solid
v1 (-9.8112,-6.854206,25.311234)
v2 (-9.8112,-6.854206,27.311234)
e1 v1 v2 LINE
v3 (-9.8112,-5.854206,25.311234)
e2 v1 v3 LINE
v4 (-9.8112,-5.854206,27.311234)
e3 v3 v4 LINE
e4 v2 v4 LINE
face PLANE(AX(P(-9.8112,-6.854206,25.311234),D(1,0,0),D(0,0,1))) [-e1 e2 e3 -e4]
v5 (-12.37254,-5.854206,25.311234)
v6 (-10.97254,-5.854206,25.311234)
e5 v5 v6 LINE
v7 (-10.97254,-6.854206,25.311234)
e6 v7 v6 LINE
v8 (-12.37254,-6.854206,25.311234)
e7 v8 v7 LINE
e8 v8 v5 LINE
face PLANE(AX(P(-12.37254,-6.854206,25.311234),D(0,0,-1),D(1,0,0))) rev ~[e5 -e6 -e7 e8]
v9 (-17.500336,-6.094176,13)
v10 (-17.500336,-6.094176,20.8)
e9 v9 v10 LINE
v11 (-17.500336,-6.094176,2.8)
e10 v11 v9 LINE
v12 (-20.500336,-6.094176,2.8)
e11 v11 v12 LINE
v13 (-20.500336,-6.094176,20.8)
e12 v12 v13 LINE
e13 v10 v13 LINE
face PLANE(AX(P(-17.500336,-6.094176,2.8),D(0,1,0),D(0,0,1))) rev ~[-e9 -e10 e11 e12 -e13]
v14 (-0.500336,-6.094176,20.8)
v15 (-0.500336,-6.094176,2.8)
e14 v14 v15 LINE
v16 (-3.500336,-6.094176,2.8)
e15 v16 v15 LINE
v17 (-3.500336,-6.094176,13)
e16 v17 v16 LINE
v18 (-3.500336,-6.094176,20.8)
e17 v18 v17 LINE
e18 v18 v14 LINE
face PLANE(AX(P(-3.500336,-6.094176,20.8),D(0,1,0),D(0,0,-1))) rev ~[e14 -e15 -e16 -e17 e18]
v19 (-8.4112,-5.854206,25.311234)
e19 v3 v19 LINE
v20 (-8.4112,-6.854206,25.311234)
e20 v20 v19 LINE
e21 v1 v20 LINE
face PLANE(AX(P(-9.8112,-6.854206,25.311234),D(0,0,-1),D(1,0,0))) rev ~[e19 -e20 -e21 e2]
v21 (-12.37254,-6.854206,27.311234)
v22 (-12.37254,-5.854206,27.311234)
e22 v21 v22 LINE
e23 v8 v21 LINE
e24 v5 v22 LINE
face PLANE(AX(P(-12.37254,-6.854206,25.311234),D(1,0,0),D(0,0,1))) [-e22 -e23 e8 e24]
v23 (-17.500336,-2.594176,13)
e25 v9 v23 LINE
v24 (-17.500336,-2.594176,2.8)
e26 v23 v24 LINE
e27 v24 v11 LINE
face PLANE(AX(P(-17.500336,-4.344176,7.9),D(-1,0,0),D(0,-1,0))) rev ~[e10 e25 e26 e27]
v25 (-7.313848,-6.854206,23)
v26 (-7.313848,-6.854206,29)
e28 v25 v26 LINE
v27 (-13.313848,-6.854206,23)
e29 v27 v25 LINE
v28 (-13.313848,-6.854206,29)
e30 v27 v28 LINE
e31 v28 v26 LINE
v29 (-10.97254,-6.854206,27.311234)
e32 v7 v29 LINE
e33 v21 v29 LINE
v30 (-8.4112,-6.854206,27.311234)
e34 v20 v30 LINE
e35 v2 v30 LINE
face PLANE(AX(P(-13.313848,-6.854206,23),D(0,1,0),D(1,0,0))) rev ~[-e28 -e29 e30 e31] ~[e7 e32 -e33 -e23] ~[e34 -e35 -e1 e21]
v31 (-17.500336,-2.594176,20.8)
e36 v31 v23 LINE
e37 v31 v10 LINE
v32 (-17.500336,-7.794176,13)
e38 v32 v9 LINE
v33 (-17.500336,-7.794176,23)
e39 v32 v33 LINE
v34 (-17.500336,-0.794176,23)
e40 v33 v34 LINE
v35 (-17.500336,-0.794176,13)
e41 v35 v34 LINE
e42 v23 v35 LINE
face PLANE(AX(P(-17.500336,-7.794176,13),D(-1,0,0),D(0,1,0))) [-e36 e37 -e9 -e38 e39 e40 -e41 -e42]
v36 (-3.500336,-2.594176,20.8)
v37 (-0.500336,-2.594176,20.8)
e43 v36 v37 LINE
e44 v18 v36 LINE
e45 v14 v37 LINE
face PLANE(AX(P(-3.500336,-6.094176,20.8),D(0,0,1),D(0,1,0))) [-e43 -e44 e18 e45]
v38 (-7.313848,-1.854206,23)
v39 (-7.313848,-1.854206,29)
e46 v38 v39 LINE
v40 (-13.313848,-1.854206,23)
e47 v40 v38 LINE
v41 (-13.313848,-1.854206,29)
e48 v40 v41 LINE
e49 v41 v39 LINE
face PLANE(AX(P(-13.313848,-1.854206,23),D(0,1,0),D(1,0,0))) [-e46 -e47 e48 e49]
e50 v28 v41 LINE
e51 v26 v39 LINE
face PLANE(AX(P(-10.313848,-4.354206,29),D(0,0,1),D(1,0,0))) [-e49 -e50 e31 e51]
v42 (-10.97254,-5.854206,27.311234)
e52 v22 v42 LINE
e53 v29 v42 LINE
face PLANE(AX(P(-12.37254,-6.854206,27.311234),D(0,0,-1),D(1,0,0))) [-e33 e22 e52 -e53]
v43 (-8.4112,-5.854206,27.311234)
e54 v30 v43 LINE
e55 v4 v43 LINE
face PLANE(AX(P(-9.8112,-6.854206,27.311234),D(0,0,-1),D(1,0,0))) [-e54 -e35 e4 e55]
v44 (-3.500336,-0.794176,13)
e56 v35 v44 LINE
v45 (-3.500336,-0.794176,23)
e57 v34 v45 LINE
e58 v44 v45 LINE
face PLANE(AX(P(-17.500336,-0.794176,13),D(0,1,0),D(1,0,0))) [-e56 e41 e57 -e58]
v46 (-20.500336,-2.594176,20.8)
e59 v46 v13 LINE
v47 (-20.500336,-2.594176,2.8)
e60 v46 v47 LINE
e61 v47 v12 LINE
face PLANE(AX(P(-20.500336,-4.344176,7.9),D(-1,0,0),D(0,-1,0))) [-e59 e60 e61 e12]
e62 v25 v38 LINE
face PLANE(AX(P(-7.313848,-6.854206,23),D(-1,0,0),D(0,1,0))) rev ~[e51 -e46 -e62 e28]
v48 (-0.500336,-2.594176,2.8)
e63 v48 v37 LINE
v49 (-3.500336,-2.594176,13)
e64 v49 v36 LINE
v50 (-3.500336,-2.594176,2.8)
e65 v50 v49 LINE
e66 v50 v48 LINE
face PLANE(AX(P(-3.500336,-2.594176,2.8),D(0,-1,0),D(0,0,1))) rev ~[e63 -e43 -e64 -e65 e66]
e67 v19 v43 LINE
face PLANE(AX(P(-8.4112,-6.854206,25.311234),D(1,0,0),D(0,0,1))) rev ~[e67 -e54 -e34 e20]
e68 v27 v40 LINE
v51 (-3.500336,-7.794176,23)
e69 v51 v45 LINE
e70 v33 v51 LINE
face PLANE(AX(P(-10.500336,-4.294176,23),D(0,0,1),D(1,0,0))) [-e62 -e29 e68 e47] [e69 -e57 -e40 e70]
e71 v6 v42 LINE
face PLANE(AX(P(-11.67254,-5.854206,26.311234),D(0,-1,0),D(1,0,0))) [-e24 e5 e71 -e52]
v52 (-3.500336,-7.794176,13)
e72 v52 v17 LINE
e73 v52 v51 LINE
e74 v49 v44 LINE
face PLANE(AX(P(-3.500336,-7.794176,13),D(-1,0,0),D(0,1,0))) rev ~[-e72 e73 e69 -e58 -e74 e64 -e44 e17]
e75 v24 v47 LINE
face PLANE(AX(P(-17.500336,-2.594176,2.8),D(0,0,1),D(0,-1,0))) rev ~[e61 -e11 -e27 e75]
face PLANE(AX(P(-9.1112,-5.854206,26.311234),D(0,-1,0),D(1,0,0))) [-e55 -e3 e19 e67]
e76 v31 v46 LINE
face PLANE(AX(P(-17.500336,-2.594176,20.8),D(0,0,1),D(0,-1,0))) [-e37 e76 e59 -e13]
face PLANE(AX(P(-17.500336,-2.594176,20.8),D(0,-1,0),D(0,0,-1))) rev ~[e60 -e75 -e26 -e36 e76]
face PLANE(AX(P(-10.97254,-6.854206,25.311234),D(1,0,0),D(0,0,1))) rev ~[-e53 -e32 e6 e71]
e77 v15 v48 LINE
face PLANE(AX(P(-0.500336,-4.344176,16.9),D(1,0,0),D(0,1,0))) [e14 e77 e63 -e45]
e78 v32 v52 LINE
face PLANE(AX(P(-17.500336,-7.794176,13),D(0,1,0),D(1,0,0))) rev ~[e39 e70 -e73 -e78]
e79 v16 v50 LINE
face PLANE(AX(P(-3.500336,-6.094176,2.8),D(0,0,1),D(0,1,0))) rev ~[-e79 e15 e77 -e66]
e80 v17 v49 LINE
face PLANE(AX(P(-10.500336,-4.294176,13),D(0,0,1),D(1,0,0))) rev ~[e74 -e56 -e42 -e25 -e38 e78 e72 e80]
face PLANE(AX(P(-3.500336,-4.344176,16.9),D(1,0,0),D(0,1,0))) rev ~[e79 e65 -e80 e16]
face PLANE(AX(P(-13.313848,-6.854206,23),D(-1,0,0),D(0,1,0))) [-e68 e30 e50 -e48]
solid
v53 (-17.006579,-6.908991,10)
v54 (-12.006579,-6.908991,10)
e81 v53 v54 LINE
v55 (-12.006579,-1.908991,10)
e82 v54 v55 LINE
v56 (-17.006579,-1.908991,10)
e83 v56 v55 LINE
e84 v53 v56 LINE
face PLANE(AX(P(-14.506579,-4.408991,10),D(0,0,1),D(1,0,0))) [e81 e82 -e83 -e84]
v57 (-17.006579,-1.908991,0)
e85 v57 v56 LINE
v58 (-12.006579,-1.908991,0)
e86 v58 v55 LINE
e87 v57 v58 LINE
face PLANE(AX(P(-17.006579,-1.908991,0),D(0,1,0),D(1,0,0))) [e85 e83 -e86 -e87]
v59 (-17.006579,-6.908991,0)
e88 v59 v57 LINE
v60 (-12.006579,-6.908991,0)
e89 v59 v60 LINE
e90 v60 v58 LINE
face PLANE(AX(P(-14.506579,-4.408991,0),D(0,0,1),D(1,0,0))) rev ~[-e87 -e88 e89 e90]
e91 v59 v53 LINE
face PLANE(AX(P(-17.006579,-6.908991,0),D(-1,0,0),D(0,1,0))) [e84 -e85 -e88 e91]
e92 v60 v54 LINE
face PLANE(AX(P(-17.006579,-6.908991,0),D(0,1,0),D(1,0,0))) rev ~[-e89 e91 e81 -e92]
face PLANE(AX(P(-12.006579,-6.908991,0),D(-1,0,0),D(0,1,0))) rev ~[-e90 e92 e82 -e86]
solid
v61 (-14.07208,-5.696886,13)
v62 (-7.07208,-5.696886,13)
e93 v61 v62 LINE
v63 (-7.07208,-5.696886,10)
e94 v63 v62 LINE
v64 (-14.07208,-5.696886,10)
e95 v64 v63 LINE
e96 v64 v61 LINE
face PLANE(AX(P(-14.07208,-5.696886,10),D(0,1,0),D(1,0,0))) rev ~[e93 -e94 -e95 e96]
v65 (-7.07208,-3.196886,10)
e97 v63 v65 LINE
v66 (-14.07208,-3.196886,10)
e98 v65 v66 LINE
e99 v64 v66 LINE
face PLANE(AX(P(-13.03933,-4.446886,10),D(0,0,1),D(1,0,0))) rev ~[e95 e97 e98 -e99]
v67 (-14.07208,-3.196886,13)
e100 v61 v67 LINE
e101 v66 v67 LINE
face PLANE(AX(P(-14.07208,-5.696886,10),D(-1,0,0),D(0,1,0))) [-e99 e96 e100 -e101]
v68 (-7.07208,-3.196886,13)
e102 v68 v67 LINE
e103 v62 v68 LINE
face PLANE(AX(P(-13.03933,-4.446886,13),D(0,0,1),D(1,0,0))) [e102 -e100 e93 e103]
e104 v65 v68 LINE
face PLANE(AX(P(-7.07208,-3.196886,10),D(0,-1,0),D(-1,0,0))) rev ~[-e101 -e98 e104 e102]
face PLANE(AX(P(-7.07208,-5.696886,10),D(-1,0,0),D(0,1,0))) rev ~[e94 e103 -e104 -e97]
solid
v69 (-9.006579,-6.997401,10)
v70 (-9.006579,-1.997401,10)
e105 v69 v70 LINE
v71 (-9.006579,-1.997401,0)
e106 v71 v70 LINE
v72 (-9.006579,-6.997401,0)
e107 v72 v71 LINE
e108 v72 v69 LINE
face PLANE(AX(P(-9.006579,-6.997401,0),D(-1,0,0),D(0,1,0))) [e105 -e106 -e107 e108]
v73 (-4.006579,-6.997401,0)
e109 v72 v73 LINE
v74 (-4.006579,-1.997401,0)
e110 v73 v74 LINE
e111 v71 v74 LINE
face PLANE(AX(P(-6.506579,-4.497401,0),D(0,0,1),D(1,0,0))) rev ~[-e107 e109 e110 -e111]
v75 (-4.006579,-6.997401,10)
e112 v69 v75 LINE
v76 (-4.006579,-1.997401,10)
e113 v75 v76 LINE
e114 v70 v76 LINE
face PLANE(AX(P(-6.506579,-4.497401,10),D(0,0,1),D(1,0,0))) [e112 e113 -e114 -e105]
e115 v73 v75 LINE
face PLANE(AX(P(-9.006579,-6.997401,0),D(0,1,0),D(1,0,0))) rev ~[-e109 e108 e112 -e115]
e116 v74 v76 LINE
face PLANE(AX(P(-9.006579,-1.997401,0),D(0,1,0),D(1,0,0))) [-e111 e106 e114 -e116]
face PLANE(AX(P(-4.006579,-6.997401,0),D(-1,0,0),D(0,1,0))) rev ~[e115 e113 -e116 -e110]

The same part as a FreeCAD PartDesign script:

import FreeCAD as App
import Part
import Sketcher

doc = App.newDocument("Part")
body = doc.addObject("PartDesign::Body", "Body")

sketch1 = body.newObject("Sketcher::SketchObject", "Sketch")
sketch1.AttachmentSupport = (doc.getObject("XY_Plane"), [""])
sketch1.MapMode = "FlatFace"
sketch1.addGeometry([
    Part.LineSegment(App.Vector(-17, -2, 0), App.Vector(-17, -7, 0)),
    Part.LineSegment(App.Vector(-17, -7, 0), App.Vector(-12, -7, 0)),
    Part.LineSegment(App.Vector(-12, -7, 0), App.Vector(-12, -2, 0)),
    Part.LineSegment(App.Vector(-12, -2, 0), App.Vector(-17, -2, 0)),
], False)
sketch1.addConstraint([
    Sketcher.Constraint("Coincident", 0, 2, 1, 1),
    Sketcher.Constraint("Coincident", 1, 2, 2, 1),
    Sketcher.Constraint("Coincident", 2, 2, 3, 1),
    Sketcher.Constraint("Coincident", 3, 2, 0, 1),
    Sketcher.Constraint("Vertical", 0),
    Sketcher.Constraint("Horizontal", 1),
    Sketcher.Constraint("Vertical", 2),
    Sketcher.Constraint("Horizontal", 3),
    Sketcher.Constraint("Equal", 3, 0),
    Sketcher.Constraint("DistanceX", 1, 1, 1, 2, 5.0),
    Sketcher.Constraint("DistanceX", 0, 2, -1, 1, 17.006579),
    Sketcher.Constraint("DistanceY", 0, 2, -1, 1, 6.908991),
])
pad1 = body.newObject("PartDesign::Pad", "Pad")
pad1.Profile = sketch1
pad1.Length = 10
body2 = doc.addObject("PartDesign::Body", "Body001")

sketch2 = body2.newObject("Sketcher::SketchObject", "Sketch001")
sketch2.AttachmentSupport = (doc.getObject("XY_Plane001"), [""])
sketch2.MapMode = "FlatFace"
sketch2.addGeometry([
    Part.LineSegment(App.Vector(-9, -2, 0), App.Vector(-9, -7, 0)),
    Part.LineSegment(App.Vector(-9, -7, 0), App.Vector(-4, -7, 0)),
    Part.LineSegment(App.Vector(-4, -7, 0), App.Vector(-4, -2, 0)),
    Part.LineSegment(App.Vector(-4, -2, 0), App.Vector(-9, -2, 0)),
], False)
sketch2.addConstraint([
    Sketcher.Constraint("Coincident", 0, 2, 1, 1),
    Sketcher.Constraint("Coincident", 1, 2, 2, 1),
    Sketcher.Constraint("Coincident", 2, 2, 3, 1),
    Sketcher.Constraint("Coincident", 3, 2, 0, 1),
    Sketcher.Constraint("Vertical", 0),
    Sketcher.Constraint("Horizontal", 1),
    Sketcher.Constraint("Vertical", 2),
    Sketcher.Constraint("Horizontal", 3),
    Sketcher.Constraint("Equal", 3, 0),
    Sketcher.Constraint("DistanceX", 1, 1, 1, 2, 5.0),
    Sketcher.Constraint("DistanceY", 0, 2, -1, 1, 6.997401),
    Sketcher.Constraint("DistanceX", 0, 2, -1, 1, 9.006579),
])
pad2 = body2.newObject("PartDesign::Pad", "Pad001")
pad2.Profile = sketch2
pad2.Length = 10
body3 = doc.addObject("PartDesign::Body", "Body002")

sketch3 = body3.newObject("Sketcher::SketchObject", "Sketch002")
sketch3.AttachmentSupport = (doc.getObject("XY_Plane002"), [""])
sketch3.MapMode = "FlatFace"
sketch3.AttachmentOffset = App.Placement(App.Vector(0, 0, 10), App.Rotation())
sketch3.addGeometry([
    Part.LineSegment(App.Vector(-14.1, -3.2, 0), App.Vector(-14.1, -5.7, 0)),
    Part.LineSegment(App.Vector(-14.1, -5.7, 0), App.Vector(-7.1, -5.7, 0)),
    Part.LineSegment(App.Vector(-7.1, -5.7, 0), App.Vector(-7.1, -3.2, 0)),
    Part.LineSegment(App.Vector(-7.1, -3.2, 0), App.Vector(-14.1, -3.2, 0)),
], False)
sketch3.addConstraint([
    Sketcher.Constraint("Coincident", 0, 2, 1, 1),
    Sketcher.Constraint("Coincident", 1, 2, 2, 1),
    Sketcher.Constraint("Coincident", 2, 2, 3, 1),
    Sketcher.Constraint("Coincident", 3, 2, 0, 1),
    Sketcher.Constraint("Vertical", 0),
    Sketcher.Constraint("Horizontal", 1),
    Sketcher.Constraint("Vertical", 2),
    Sketcher.Constraint("Horizontal", 3),
    Sketcher.Constraint("DistanceX", 1, 1, 1, 2, 7.0),
    Sketcher.Constraint("DistanceY", 0, 2, 0, 1, 2.5),
    Sketcher.Constraint("DistanceX", 0, 2, -1, 1, 14.07208),
    Sketcher.Constraint("DistanceY", 0, 2, -1, 1, 5.696886),
])
pad3 = body3.newObject("PartDesign::Pad", "Pad002")
pad3.Profile = sketch3
pad3.Length = 3
body4 = doc.addObject("PartDesign::Body", "Body003")

sketch4 = body4.newObject("Sketcher::SketchObject", "Sketch003")
sketch4.AttachmentSupport = (doc.getObject("XY_Plane003"), [""])
sketch4.MapMode = "FlatFace"
sketch4.AttachmentOffset = App.Placement(App.Vector(0, 0, 13), App.Rotation())
sketch4.addGeometry([
    Part.LineSegment(App.Vector(-18, -1, 0), App.Vector(-18, -8, 0)),
    Part.LineSegment(App.Vector(-18, -8, 0), App.Vector(-4, -8, 0)),
    Part.LineSegment(App.Vector(-4, -8, 0), App.Vector(-4, -1, 0)),
    Part.LineSegment(App.Vector(-4, -1, 0), App.Vector(-18, -1, 0)),
], False)
sketch4.addConstraint([
    Sketcher.Constraint("Coincident", 0, 2, 1, 1),
    Sketcher.Constraint("Coincident", 1, 2, 2, 1),
    Sketcher.Constraint("Coincident", 2, 2, 3, 1),
    Sketcher.Constraint("Coincident", 3, 2, 0, 1),
    Sketcher.Constraint("Vertical", 0),
    Sketcher.Constraint("Horizontal", 1),
    Sketcher.Constraint("Vertical", 2),
    Sketcher.Constraint("Horizontal", 3),
    Sketcher.Constraint("DistanceX", 1, 1, 1, 2, 14.0),
    Sketcher.Constraint("DistanceY", 0, 2, 0, 1, 7.0),
    Sketcher.Constraint("DistanceX", 0, 2, -1, 1, 17.500336),
    Sketcher.Constraint("DistanceY", 0, 2, -1, 1, 7.794176),
])
pad4 = body4.newObject("PartDesign::Pad", "Pad003")
pad4.Profile = sketch4
pad4.Length = 10

sketch5 = body4.newObject("Sketcher::SketchObject", "Sketch004")
sketch5.AttachmentSupport = (doc.getObject("XY_Plane003"), [""])
sketch5.MapMode = "FlatFace"
sketch5.AttachmentOffset = App.Placement(App.Vector(0, 0, 23), App.Rotation())
sketch5.addGeometry([
    Part.LineSegment(App.Vector(-13, -2, 0), App.Vector(-13, -7, 0)),
    Part.LineSegment(App.Vector(-13, -7, 0), App.Vector(-7, -7, 0)),
    Part.LineSegment(App.Vector(-7, -7, 0), App.Vector(-7, -2, 0)),
    Part.LineSegment(App.Vector(-7, -2, 0), App.Vector(-13, -2, 0)),
], False)
sketch5.addConstraint([
    Sketcher.Constraint("Coincident", 0, 2, 1, 1),
    Sketcher.Constraint("Coincident", 1, 2, 2, 1),
    Sketcher.Constraint("Coincident", 2, 2, 3, 1),
    Sketcher.Constraint("Coincident", 3, 2, 0, 1),
    Sketcher.Constraint("Vertical", 0),
    Sketcher.Constraint("Horizontal", 1),
    Sketcher.Constraint("Vertical", 2),
    Sketcher.Constraint("Horizontal", 3),
    Sketcher.Constraint("DistanceX", 1, 1, 1, 2, 6.0),
    Sketcher.Constraint("DistanceY", 0, 2, 0, 1, 5.0),
    Sketcher.Constraint("DistanceX", 0, 2, -1, 1, 13.313848),
    Sketcher.Constraint("DistanceY", 0, 2, -1, 1, 6.854206),
])
pad5 = body4.newObject("PartDesign::Pad", "Pad004")
pad5.Profile = sketch5
pad5.Length = 6

sketch6 = body4.newObject("Sketcher::SketchObject", "Sketch005")
sketch6.AttachmentSupport = (doc.getObject("XZ_Plane003"), [""])
sketch6.MapMode = "FlatFace"
sketch6.AttachmentOffset = App.Placement(App.Vector(0, 0, 6.854206), App.Rotation())
sketch6.addGeometry([
    Part.LineSegment(App.Vector(-12.4, 27.3, 0), App.Vector(-12.4, 25.3, 0)),
    Part.LineSegment(App.Vector(-12.4, 25.3, 0), App.Vector(-11, 25.3, 0)),
    Part.LineSegment(App.Vector(-11, 25.3, 0), App.Vector(-11, 27.3, 0)),
    Part.LineSegment(App.Vector(-11, 27.3, 0), App.Vector(-12.4, 27.3, 0)),
    Part.LineSegment(App.Vector(-9.8, 27.3, 0), App.Vector(-9.8, 25.3, 0)),
    Part.LineSegment(App.Vector(-9.8, 25.3, 0), App.Vector(-8.4, 25.3, 0)),
    Part.LineSegment(App.Vector(-8.4, 25.3, 0), App.Vector(-8.4, 27.3, 0)),
    Part.LineSegment(App.Vector(-8.4, 27.3, 0), App.Vector(-9.8, 27.3, 0)),
], False)
sketch6.addConstraint([
    Sketcher.Constraint("Coincident", 0, 2, 1, 1),
    Sketcher.Constraint("Coincident", 1, 2, 2, 1),
    Sketcher.Constraint("Coincident", 2, 2, 3, 1),
    Sketcher.Constraint("Coincident", 3, 2, 0, 1),
    Sketcher.Constraint("Coincident", 4, 2, 5, 1),
    Sketcher.Constraint("Coincident", 5, 2, 6, 1),
    Sketcher.Constraint("Coincident", 6, 2, 7, 1),
    Sketcher.Constraint("Coincident", 7, 2, 4, 1),
    Sketcher.Constraint("Vertical", 0),
    Sketcher.Constraint("Horizontal", 1),
    Sketcher.Constraint("Vertical", 2),
    Sketcher.Constraint("Horizontal", 3),
    Sketcher.Constraint("Vertical", 4),
    Sketcher.Constraint("Horizontal", 5),
    Sketcher.Constraint("Vertical", 6),
    Sketcher.Constraint("Horizontal", 7),
    Sketcher.Constraint("Horizontal", 1, 2, 4, 2),
    Sketcher.Constraint("Horizontal", 3, 2, 6, 2),
    Sketcher.Constraint("Equal", 3, 5),
    Sketcher.Constraint("DistanceY", 0, 2, 0, 1, 2.0),
    Sketcher.Constraint("DistanceX", 1, 1, 1, 2, 1.4),
    Sketcher.Constraint("DistanceX", 4, 2, -1, 1, 9.8112),
    Sketcher.Constraint("DistanceX", 0, 2, -1, 1, 12.37254),
    Sketcher.Constraint("DistanceY", -1, 1, 0, 2, 25.311234),
])
pocket1 = body4.newObject("PartDesign::Pocket", "Pocket")
pocket1.Profile = sketch6
pocket1.Length = 1

sketch7 = body4.newObject("Sketcher::SketchObject", "Sketch006")
sketch7.AttachmentSupport = (doc.getObject("YZ_Plane003"), [""])
sketch7.MapMode = "FlatFace"
sketch7.AttachmentOffset = App.Placement(App.Vector(0, 0, -3.500336), App.Rotation())
sketch7.addGeometry([
    Part.LineSegment(App.Vector(-6.1, 20.8, 0), App.Vector(-6.1, 2.8, 0)),
    Part.LineSegment(App.Vector(-6.1, 2.8, 0), App.Vector(-2.6, 2.8, 0)),
    Part.LineSegment(App.Vector(-2.6, 2.8, 0), App.Vector(-2.6, 20.8, 0)),
    Part.LineSegment(App.Vector(-2.6, 20.8, 0), App.Vector(-6.1, 20.8, 0)),
], False)
sketch7.addConstraint([
    Sketcher.Constraint("Coincident", 0, 2, 1, 1),
    Sketcher.Constraint("Coincident", 1, 2, 2, 1),
    Sketcher.Constraint("Coincident", 2, 2, 3, 1),
    Sketcher.Constraint("Coincident", 3, 2, 0, 1),
    Sketcher.Constraint("Vertical", 0),
    Sketcher.Constraint("Horizontal", 1),
    Sketcher.Constraint("Vertical", 2),
    Sketcher.Constraint("Horizontal", 3),
    Sketcher.Constraint("DistanceY", 0, 2, 0, 1, 18.0),
    Sketcher.Constraint("DistanceX", 1, 1, 1, 2, 3.5),
    Sketcher.Constraint("DistanceY", -1, 1, 0, 2, 2.8),
    Sketcher.Constraint("DistanceX", 0, 2, -1, 1, 6.094176),
])
pad6 = body4.newObject("PartDesign::Pad", "Pad005")
pad6.Profile = sketch7
pad6.Length = 3

sketch8 = body4.newObject("Sketcher::SketchObject", "Sketch007")
sketch8.AttachmentSupport = (doc.getObject("YZ_Plane003"), [""])
sketch8.MapMode = "FlatFace"
sketch8.AttachmentOffset = App.Placement(App.Vector(0, 0, -17.500336), App.Rotation())
sketch8.addGeometry([
    Part.LineSegment(App.Vector(-2.6, 2.8, 0), App.Vector(-6.1, 2.8, 0)),
    Part.LineSegment(App.Vector(-6.1, 2.8, 0), App.Vector(-6.1, 20.8, 0)),
    Part.LineSegment(App.Vector(-6.1, 20.8, 0), App.Vector(-2.6, 20.8, 0)),
    Part.LineSegment(App.Vector(-2.6, 20.8, 0), App.Vector(-2.6, 2.8, 0)),
], False)
sketch8.addConstraint([
    Sketcher.Constraint("Coincident", 0, 2, 1, 1),
    Sketcher.Constraint("Coincident", 1, 2, 2, 1),
    Sketcher.Constraint("Coincident", 2, 2, 3, 1),
    Sketcher.Constraint("Coincident", 3, 2, 0, 1),
    Sketcher.Constraint("Horizontal", 0),
    Sketcher.Constraint("Vertical", 1),
    Sketcher.Constraint("Horizontal", 2),
    Sketcher.Constraint("Vertical", 3),
    Sketcher.Constraint("DistanceY", 1, 1, 1, 2, 18.0),
    Sketcher.Constraint("DistanceX", 0, 2, 0, 1, 3.5),
    Sketcher.Constraint("DistanceY", -1, 1, 0, 2, 2.8),
    Sketcher.Constraint("DistanceX", 0, 2, -1, 1, 6.094176),
])
pad7 = body4.newObject("PartDesign::Pad", "Pad006")
pad7.Profile = sketch8
pad7.Length = 3
pad7.Reversed = True

doc.recompute()
